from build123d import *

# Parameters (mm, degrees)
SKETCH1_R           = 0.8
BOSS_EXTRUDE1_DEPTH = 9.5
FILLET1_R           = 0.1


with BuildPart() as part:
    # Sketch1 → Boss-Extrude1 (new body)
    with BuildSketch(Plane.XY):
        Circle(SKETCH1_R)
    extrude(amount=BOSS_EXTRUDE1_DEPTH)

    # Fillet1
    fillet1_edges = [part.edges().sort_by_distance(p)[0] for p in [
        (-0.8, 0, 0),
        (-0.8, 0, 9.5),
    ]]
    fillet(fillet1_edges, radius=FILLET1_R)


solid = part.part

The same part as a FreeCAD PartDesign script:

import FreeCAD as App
import Part
import Sketcher

V = App.Vector


def edges_at(feature, points):
    """Names of the edges that pass closest to the given points."""
    edges = feature.Shape.Edges
    near = lambda p: min(range(len(edges)), key=lambda i: edges[i].distToShape(Part.Vertex(*p))[0])
    return sorted({f"Edge{near(p) + 1}" for p in points})

doc = App.newDocument("Part")
body = doc.addObject("PartDesign::Body", "Body")

# Sketch on XY plane
sketch1 = doc.addObject("Sketcher::SketchObject", "Sketch")
body.addObject(sketch1)
sketch1.AttachmentSupport = (doc.XY_Plane, [""])
sketch1.MapMode = "FlatFace"
sketch1.addGeometry(Part.Circle(V(0, 0, 0), V(0, 0, 1), 0.8), False)
sketch1.addConstraint(Sketcher.Constraint("Coincident", 0, 3, -1, 1))
sketch1.addConstraint(Sketcher.Constraint("Diameter", 0, 1.6))
pad1 = doc.addObject("PartDesign::Pad", "Pad")
body.addObject(pad1)
pad1.Profile = sketch1
pad1.Length = 9.5
doc.recompute()

fillet = doc.addObject("PartDesign::Fillet", "Fillet")
body.addObject(fillet)
fillet.Base = (pad1, edges_at(pad1, [(-0.8, 0, 0), (-0.8, 0, 9.5)]))
fillet.Radius = 0.1

doc.recompute()
